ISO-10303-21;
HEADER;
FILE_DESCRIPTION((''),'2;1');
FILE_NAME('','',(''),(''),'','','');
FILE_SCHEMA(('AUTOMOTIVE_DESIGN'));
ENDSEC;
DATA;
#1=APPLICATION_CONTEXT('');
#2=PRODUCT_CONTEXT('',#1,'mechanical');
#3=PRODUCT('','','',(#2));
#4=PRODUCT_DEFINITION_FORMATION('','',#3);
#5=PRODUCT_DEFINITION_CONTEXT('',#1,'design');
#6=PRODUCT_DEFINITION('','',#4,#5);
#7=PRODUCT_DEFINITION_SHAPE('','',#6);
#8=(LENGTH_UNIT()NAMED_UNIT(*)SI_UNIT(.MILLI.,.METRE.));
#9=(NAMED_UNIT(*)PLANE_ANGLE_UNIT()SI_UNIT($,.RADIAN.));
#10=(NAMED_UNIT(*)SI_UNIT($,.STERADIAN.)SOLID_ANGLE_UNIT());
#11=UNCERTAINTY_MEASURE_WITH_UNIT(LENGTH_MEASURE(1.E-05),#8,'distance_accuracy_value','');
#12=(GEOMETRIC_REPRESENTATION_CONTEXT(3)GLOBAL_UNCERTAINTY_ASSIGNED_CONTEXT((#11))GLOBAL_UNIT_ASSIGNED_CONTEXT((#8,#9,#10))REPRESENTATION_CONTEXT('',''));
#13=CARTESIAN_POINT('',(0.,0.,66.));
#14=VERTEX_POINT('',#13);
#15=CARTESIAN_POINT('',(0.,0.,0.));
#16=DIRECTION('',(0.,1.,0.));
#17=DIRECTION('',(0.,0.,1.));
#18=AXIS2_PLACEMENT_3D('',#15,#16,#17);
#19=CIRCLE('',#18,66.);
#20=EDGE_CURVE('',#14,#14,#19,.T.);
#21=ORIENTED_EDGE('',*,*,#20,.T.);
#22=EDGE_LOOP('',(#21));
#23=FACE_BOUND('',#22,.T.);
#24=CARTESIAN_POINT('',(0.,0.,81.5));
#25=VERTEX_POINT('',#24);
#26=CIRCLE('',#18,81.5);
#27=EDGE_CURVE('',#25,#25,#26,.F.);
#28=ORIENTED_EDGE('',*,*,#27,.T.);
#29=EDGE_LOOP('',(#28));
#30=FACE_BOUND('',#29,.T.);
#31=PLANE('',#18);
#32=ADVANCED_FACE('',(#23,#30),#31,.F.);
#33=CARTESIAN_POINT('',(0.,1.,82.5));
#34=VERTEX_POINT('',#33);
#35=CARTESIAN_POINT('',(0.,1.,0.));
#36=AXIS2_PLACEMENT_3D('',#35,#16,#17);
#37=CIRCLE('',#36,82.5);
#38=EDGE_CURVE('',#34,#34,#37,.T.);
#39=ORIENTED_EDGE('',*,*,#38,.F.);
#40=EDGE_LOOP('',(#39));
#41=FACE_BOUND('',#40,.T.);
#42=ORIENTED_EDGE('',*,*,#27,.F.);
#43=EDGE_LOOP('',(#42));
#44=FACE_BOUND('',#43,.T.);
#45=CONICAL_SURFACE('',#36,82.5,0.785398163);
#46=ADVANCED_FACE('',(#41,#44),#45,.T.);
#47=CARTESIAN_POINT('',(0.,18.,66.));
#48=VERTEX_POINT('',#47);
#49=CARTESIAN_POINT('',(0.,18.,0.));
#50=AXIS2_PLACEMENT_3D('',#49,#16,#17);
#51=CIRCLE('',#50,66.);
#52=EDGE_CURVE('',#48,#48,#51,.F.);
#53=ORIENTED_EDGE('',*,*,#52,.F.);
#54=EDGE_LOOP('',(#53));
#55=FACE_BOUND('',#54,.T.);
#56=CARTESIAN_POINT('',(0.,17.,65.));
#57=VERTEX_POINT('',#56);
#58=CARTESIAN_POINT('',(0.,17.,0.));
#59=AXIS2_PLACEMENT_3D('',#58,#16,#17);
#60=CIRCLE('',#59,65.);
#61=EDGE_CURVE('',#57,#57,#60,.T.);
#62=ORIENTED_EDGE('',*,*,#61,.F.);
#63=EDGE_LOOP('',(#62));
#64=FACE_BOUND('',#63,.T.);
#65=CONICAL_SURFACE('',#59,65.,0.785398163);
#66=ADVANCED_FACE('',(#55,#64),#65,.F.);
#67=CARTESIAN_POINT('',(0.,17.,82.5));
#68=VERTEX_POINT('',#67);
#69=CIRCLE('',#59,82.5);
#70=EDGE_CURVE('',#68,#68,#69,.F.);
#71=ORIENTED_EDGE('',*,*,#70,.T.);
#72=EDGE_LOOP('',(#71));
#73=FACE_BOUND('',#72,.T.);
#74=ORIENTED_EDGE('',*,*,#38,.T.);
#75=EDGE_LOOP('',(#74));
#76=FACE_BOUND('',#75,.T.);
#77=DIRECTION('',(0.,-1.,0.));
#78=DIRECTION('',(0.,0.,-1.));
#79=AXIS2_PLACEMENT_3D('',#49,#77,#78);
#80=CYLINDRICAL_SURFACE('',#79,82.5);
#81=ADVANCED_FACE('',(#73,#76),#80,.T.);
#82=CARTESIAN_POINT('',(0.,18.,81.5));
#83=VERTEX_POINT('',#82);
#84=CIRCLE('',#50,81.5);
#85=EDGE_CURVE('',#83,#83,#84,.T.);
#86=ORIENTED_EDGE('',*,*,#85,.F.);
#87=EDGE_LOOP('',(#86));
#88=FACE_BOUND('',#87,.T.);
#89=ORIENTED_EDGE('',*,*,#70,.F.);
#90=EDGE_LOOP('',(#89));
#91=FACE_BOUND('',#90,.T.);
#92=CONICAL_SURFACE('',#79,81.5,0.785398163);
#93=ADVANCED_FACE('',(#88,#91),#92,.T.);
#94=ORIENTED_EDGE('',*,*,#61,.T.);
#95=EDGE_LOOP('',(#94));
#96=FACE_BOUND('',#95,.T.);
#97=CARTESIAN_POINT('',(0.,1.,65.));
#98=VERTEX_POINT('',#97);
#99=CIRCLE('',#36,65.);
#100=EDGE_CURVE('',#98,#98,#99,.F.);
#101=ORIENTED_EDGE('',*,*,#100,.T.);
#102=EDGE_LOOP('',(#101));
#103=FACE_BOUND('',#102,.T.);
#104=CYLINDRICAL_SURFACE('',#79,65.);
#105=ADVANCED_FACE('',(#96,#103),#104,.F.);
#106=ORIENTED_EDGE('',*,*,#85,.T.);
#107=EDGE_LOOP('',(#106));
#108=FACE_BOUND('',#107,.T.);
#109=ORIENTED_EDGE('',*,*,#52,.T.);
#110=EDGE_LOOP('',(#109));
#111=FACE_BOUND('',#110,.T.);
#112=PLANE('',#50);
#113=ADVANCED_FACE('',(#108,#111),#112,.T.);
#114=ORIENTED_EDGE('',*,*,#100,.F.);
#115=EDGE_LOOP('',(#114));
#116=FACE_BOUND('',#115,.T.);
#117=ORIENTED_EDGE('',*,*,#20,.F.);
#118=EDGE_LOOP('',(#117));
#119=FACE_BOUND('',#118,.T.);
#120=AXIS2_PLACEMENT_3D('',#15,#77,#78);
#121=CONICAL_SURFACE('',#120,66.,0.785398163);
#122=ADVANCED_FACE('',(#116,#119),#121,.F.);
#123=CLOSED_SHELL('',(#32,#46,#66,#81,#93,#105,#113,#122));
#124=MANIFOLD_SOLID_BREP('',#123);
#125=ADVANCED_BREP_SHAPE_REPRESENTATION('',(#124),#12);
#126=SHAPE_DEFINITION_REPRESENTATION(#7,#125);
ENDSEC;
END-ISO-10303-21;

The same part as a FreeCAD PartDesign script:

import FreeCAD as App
import Part
import Sketcher

V = App.Vector
Q = App.Units.Quantity


def edges_at(feature, points):
    """Names of the edges that pass closest to the given points."""
    edges = feature.Shape.Edges
    near = lambda p: min(range(len(edges)), key=lambda i: edges[i].distToShape(Part.Vertex(*p))[0])
    return sorted({f"Edge{near(p) + 1}" for p in points})

doc = App.newDocument("Part")
params = doc.addObject("Spreadsheet::Sheet", "Params")
for row, (alias, value) in enumerate([
    ("sketch1_diameter", "165 mm"),
    ("sketch1_diameter2", "130 mm"),
    ("pad1_length", "18 mm"),
    ("chamfer_size", "1 mm"),
], start=1):
    params.set(f"A{row}", alias)
    params.set(f"B{row}", "=" + value)
    params.setAlias(f"B{row}", alias)

body = doc.addObject("PartDesign::Body", "Body")

sketch1 = doc.addObject("Sketcher::SketchObject", "Sketch")
body.addObject(sketch1)
sketch1.AttachmentSupport = (doc.XZ_Plane, [""])
sketch1.MapMode = "FlatFace"
sketch1.addGeometry([
    Part.Circle(V(0, 0, 0), V(0, 0, 1), 82),
    Part.Circle(V(0, 0, 0), V(0, 0, 1), 65),
], False)
sketch1.addConstraint([
    Sketcher.Constraint("Coincident", 0, 3, -1, 1),
    Sketcher.Constraint("Coincident", 1, 3, -1, 1),
    Sketcher.Constraint("Diameter", 0, Q("165 mm")),
    Sketcher.Constraint("Diameter", 1, Q("130 mm")),
])
sketch1.setExpression("Constraints[2]", "Params.sketch1_diameter")
sketch1.setExpression("Constraints[3]", "Params.sketch1_diameter2")
pad1 = doc.addObject("PartDesign::Pad", "Pad")
body.addObject(pad1)
pad1.Profile = sketch1
pad1.setExpression("Length", "Params.pad1_length")
pad1.Reversed = True
doc.recompute()

chamfer = doc.addObject("PartDesign::Chamfer", "Chamfer")
body.addObject(chamfer)
chamfer.Base = (pad1, edges_at(pad1, [
    (-82.5, 0, 0),
    (-82.5, 18, 0),
    (-65, 0, 0),
    (-65, 18, 0),
]))
chamfer.setExpression("Size", "Params.chamfer_size")

doc.recompute()
